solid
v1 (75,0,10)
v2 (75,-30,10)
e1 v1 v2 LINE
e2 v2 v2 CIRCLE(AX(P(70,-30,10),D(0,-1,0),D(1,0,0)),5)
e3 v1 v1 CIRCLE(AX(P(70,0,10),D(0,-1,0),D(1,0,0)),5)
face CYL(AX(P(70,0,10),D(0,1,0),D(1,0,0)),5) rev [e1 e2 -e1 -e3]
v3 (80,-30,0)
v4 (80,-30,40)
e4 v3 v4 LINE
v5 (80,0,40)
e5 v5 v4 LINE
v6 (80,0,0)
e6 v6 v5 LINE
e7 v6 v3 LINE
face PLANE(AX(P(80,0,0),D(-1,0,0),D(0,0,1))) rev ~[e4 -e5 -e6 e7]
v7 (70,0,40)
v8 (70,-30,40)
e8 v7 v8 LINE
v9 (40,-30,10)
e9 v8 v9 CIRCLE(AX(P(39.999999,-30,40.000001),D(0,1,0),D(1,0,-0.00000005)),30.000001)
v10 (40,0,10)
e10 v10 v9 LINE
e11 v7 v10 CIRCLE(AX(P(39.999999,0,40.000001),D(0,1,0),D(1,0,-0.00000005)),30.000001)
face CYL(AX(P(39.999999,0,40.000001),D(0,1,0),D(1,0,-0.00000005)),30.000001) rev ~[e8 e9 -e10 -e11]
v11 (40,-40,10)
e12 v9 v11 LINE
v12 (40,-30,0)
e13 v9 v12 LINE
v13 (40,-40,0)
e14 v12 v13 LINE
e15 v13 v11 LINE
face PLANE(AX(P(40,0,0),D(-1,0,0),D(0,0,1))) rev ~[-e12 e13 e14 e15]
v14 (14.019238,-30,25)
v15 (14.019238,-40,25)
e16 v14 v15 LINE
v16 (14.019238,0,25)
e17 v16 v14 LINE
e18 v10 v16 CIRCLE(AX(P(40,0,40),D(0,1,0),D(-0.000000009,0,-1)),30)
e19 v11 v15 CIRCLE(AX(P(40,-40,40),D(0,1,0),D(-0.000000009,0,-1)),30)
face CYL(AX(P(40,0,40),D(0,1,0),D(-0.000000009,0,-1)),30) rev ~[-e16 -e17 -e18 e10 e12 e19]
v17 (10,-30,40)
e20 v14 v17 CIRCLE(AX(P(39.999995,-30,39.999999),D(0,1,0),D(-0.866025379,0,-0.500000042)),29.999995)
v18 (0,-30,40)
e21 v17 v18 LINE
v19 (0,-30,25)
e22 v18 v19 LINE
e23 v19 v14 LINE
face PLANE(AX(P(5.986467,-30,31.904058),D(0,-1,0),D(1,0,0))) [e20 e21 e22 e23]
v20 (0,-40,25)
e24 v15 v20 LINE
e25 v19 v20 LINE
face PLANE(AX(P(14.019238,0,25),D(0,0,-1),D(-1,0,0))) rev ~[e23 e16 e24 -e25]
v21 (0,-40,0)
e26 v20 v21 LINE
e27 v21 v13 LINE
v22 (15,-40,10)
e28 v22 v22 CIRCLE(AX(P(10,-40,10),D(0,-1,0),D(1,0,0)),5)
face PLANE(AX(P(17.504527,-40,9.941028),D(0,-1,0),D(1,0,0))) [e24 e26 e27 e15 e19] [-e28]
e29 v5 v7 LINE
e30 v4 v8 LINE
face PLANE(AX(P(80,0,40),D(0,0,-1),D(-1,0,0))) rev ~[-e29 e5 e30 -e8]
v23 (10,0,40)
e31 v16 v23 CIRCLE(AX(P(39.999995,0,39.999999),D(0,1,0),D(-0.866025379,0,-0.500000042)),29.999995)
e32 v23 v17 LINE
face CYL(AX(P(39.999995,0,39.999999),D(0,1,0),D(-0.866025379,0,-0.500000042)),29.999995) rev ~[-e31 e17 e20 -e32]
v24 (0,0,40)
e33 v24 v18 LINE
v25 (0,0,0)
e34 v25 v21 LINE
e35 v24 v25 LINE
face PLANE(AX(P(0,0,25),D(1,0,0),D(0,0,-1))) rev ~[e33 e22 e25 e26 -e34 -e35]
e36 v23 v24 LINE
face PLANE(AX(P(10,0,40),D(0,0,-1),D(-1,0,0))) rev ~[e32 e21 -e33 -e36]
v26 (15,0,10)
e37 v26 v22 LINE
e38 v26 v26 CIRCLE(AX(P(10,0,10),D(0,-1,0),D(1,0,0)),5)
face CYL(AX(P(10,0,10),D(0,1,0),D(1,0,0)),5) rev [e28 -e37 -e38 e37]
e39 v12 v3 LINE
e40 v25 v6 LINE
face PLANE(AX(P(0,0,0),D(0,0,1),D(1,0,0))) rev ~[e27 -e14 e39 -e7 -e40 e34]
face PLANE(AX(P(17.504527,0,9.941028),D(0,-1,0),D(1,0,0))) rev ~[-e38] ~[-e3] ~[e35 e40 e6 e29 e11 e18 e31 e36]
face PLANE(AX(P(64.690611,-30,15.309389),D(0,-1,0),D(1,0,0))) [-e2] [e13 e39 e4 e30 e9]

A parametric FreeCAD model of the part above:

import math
import FreeCAD as App
import Part
import Sketcher

V = App.Vector
Q = App.Units.Quantity

doc = App.newDocument("Part")
body = doc.addObject("PartDesign::Body", "Body")
body.AllowCompound = True

# Sketch on XZ plane
sketch1 = doc.addObject("Sketcher::SketchObject", "Sketch")
body.addObject(sketch1)
sketch1.AttachmentSupport = (doc.XZ_Plane, [""])
sketch1.MapMode = "FlatFace"
sketch1.addGeometry(Part.LineSegment(V(40, 10, 0), V(40, 0, 0)), False)
sketch1.addGeometry(Part.LineSegment(V(40, 0, 0), V(80, 0, 0)), False)
sketch1.addGeometry(Part.LineSegment(V(80, 0, 0), V(80, 40, 0)), False)
sketch1.addGeometry(Part.LineSegment(V(80, 40, 0), V(70, 40, 0)), False)
sketch1.addGeometry(Part.ArcOfCircle(Part.Circle(V(40, 40, 0), V(0, 0, 1), 30), math.radians(-90), math.radians(0)), False)
sketch1.addGeometry(Part.Circle(V(70, 10, 0), V(0, 0, 1), 5), False)
sketch1.addGeometry(Part.LineSegment(V(0, 40, 0), V(0, 25, 0)), False)
sketch1.addGeometry(Part.LineSegment(V(0, 25, 0), V(14, 25, 0)), False)
sketch1.addGeometry(Part.ArcOfCircle(Part.Circle(V(40, 40, 0), V(0, 0, 1), 30), math.radians(180), math.radians(210)), False)
sketch1.addGeometry(Part.LineSegment(V(10, 40, 0), V(0, 40, 0)), False)
sketch1.addConstraint(Sketcher.Constraint("Coincident", 0, 2, 1, 1))
sketch1.addConstraint(Sketcher.Constraint("Coincident", 1, 2, 2, 1))
sketch1.addConstraint(Sketcher.Constraint("Coincident", 2, 2, 3, 1))
sketch1.addConstraint(Sketcher.Constraint("Coincident", 3, 2, 4, 2))
sketch1.addConstraint(Sketcher.Constraint("Coincident", 4, 1, 0, 1))
sketch1.addConstraint(Sketcher.Constraint("Coincident", 6, 2, 7, 1))
sketch1.addConstraint(Sketcher.Constraint("Coincident", 7, 2, 8, 2))
sketch1.addConstraint(Sketcher.Constraint("Coincident", 8, 1, 9, 1))
sketch1.addConstraint(Sketcher.Constraint("Coincident", 9, 2, 6, 1))
sketch1.addConstraint(Sketcher.Constraint("Vertical", 0))
sketch1.addConstraint(Sketcher.Constraint("Horizontal", 1))
sketch1.addConstraint(Sketcher.Constraint("Vertical", 2))
sketch1.addConstraint(Sketcher.Constraint("Horizontal", 3))
sketch1.addConstraint(Sketcher.Constraint("Vertical", 6))
sketch1.addConstraint(Sketcher.Constraint("Horizontal", 7))
sketch1.addConstraint(Sketcher.Constraint("Horizontal", 9))
sketch1.addConstraint(Sketcher.Constraint("Coincident", 8, 3, 4, 3))
sketch1.addConstraint(Sketcher.Constraint("PointOnObject", 0, 2, -1))
sketch1.addConstraint(Sketcher.Constraint("PointOnObject", 6, 2, -2))
sketch1.addConstraint(Sketcher.Constraint("Horizontal", 8, 3, 2, 2))
sketch1.addConstraint(Sketcher.Constraint("Horizontal", 5, 3, 4, 1))
sketch1.addConstraint(Sketcher.Constraint("Horizontal", 3, 2, 8, 1))
sketch1.addConstraint(Sketcher.Constraint("Vertical", 4, 3, 0, 2))
sketch1.addConstraint(Sketcher.Constraint("Vertical", 5, 3, 3, 2))
sketch1.addConstraint(Sketcher.Constraint("Equal", 3, 9))
sketch1.addConstraint(Sketcher.Constraint("Equal", 9, 0))
sketch1.addConstraint(Sketcher.Constraint("Diameter", 5, Q("10 mm")))
sketch1.addConstraint(Sketcher.Constraint("Radius", 4, Q("30.000001 mm")))
sketch1.addConstraint(Sketcher.Constraint("DistanceX", 1, 1, 1, 2, Q("40 mm")))
sketch1.addConstraint(Sketcher.Constraint("DistanceY", 6, 2, 6, 1, Q("15 mm")))
sketch1.addConstraint(Sketcher.Constraint("DistanceX", -1, 1, 4, 3, Q("39.999999 mm")))
pad1 = doc.addObject("PartDesign::Pad", "Pad")
body.addObject(pad1)
pad1.Profile = sketch1
pad1.Length = 30

# Sketch on XZ plane
sketch2 = doc.addObject("Sketcher::SketchObject", "Sketch001")
body.addObject(sketch2)
sketch2.AttachmentSupport = (doc.XZ_Plane, [""])
sketch2.MapMode = "FlatFace"
sketch2.addGeometry(Part.LineSegment(V(0, 25, 0), V(0, 0, 0)), False)
sketch2.addGeometry(Part.LineSegment(V(0, 0, 0), V(40, 0, 0)), False)
sketch2.addGeometry(Part.LineSegment(V(40, 0, 0), V(40, 10, 0)), False)
sketch2.addGeometry(Part.ArcOfCircle(Part.Circle(V(40, 40, 0), V(0, 0, 1), 30), math.radians(-150), math.radians(-90)), False)
sketch2.addGeometry(Part.LineSegment(V(14, 25, 0), V(0, 25, 0)), False)
sketch2.addGeometry(Part.Circle(V(10, 10, 0), V(0, 0, 1), 5), False)
sketch2.addConstraint(Sketcher.Constraint("Coincident", 0, 2, 1, 1))
sketch2.addConstraint(Sketcher.Constraint("Coincident", 1, 2, 2, 1))
sketch2.addConstraint(Sketcher.Constraint("Coincident", 2, 2, 3, 2))
sketch2.addConstraint(Sketcher.Constraint("Coincident", 3, 1, 4, 1))
sketch2.addConstraint(Sketcher.Constraint("Coincident", 4, 2, 0, 1))
sketch2.addConstraint(Sketcher.Constraint("Vertical", 0))
sketch2.addConstraint(Sketcher.Constraint("Horizontal", 1))
sketch2.addConstraint(Sketcher.Constraint("Vertical", 2))
sketch2.addConstraint(Sketcher.Constraint("Horizontal", 4))
sketch2.addConstraint(Sketcher.Constraint("Coincident", 0, 2, -1, 1))
sketch2.addConstraint(Sketcher.Constraint("Horizontal", 5, 3, 2, 2))
sketch2.addConstraint(Sketcher.Constraint("Vertical", 3, 3, 1, 2))
sketch2.addConstraint(Sketcher.Constraint("Diameter", 5, Q("10 mm")))
sketch2.addConstraint(Sketcher.Constraint("Radius", 3, Q("30 mm")))
sketch2.addConstraint(Sketcher.Constraint("DistanceX", 1, 1, 1, 2, Q("40 mm")))
sketch2.addConstraint(Sketcher.Constraint("DistanceY", 0, 2, 0, 1, Q("25 mm")))
sketch2.addConstraint(Sketcher.Constraint("DistanceY", 2, 1, 2, 2, Q("10 mm")))
sketch2.addConstraint(Sketcher.Constraint("DistanceX", -1, 1, 5, 3, Q("10 mm")))
pad2 = doc.addObject("PartDesign::Pad", "Pad001")
body.addObject(pad2)
pad2.Profile = sketch2
pad2.Length = 40

doc.recompute()
